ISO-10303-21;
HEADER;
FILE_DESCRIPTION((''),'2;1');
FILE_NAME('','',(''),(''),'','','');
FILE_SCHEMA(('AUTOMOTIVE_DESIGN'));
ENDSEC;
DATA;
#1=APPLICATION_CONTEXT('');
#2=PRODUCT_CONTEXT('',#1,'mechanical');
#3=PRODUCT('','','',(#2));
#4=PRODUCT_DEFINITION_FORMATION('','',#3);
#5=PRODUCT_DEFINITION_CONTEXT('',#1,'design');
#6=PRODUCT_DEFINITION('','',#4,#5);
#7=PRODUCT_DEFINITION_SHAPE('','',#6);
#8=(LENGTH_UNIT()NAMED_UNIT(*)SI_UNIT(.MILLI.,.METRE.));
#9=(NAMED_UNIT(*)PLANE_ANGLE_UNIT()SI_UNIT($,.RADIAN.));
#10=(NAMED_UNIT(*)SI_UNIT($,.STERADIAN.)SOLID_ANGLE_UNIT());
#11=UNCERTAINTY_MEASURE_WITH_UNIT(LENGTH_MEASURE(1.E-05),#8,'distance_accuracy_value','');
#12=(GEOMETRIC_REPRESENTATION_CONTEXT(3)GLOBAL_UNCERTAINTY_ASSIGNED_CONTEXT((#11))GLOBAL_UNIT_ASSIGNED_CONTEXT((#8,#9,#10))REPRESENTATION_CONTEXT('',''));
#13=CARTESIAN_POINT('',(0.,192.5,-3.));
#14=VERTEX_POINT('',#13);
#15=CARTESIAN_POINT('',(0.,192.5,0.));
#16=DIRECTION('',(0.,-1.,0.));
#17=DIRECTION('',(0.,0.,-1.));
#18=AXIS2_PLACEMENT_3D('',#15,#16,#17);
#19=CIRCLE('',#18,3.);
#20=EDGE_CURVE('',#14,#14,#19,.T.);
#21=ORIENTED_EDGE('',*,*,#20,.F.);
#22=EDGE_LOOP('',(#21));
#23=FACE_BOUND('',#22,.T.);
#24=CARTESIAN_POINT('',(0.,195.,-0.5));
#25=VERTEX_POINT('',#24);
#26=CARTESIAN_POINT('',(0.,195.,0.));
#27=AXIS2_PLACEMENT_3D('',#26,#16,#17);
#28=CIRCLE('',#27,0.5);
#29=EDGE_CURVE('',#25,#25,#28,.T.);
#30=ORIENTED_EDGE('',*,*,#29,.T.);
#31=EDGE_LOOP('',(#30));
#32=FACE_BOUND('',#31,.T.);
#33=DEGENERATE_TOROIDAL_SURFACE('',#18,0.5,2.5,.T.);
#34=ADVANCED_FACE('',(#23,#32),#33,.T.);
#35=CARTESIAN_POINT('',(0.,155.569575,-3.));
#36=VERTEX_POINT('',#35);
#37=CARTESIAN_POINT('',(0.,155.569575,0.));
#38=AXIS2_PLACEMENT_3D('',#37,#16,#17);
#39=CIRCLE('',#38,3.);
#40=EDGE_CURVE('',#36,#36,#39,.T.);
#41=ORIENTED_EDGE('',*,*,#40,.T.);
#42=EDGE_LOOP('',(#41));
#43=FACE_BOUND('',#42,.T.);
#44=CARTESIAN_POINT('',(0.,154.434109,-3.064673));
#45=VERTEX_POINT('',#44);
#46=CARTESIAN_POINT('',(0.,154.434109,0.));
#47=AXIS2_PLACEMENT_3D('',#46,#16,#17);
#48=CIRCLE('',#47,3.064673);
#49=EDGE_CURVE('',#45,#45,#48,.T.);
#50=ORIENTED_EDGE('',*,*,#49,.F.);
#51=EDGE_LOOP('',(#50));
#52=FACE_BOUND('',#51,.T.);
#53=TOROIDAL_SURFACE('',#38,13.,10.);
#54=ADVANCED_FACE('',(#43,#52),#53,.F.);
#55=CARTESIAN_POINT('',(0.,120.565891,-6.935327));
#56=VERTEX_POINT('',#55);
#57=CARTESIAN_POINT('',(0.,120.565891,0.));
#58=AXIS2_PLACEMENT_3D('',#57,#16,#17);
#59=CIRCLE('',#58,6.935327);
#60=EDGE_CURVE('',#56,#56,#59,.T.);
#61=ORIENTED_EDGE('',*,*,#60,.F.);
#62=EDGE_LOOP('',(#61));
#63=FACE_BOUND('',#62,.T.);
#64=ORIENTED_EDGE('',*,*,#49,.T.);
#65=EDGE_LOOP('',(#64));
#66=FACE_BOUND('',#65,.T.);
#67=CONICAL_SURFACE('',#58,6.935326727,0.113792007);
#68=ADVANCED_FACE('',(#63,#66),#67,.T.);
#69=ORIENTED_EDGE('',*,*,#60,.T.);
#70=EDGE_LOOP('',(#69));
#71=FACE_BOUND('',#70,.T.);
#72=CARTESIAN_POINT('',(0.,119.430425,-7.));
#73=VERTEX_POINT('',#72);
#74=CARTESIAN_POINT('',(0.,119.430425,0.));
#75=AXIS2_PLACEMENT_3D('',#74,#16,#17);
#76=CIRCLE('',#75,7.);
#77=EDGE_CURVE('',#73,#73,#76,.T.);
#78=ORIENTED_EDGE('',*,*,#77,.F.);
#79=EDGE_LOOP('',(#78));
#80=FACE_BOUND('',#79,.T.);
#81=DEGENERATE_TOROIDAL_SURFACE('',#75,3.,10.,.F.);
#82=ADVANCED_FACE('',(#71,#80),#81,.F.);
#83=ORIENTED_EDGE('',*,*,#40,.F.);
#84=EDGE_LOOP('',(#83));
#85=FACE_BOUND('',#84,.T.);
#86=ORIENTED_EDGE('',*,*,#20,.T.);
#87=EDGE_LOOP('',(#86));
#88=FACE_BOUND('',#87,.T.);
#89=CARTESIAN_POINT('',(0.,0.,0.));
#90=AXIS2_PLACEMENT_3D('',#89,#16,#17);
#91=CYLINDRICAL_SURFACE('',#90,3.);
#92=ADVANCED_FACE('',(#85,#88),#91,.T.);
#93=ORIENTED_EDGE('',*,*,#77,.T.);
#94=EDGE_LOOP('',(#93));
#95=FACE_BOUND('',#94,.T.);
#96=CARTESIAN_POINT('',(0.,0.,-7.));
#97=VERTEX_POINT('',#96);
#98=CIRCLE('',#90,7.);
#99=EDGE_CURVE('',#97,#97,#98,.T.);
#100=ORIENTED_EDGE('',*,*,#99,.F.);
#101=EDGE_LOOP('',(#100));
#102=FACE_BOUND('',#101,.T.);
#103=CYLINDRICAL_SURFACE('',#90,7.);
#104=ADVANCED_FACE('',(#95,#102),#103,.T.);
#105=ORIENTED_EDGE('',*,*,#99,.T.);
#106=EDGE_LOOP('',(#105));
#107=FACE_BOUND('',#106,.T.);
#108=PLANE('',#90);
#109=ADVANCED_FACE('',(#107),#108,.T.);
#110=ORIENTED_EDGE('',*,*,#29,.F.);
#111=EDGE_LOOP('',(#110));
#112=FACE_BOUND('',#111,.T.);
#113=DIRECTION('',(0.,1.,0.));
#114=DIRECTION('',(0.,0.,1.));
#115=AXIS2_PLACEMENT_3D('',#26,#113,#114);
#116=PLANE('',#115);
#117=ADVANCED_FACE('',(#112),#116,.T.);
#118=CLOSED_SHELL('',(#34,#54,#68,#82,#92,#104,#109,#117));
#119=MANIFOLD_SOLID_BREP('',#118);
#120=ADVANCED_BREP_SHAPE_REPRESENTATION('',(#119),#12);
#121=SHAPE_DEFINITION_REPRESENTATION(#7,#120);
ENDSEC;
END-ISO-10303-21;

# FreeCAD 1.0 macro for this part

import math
import FreeCAD as App
import Part
import Sketcher

V = App.Vector
Q = App.Units.Quantity

doc = App.newDocument("Part")
body = doc.addObject("PartDesign::Body", "Body")

# Sketch on XY plane
sketch1 = body.newObject("Sketcher::SketchObject", "Sketch")
sketch1.AttachmentSupport = (doc.getObject("XY_Plane"), [""])
sketch1.MapMode = "FlatFace"
sketch1.addGeometry([
    Part.LineSegment(V(3, 155.569575, 0), V(3, 192.5, 0)),  # 0
    Part.ArcOfCircle(Part.Circle(V(0.5, 192.5, 0), V(0, 0, 1), 2.5), math.radians(0), math.radians(90)),  # 1
    Part.LineSegment(V(0.5, 195, 0), V(0, 195, 0)),  # 2
    Part.LineSegment(V(0, 195, 0), V(0, 0, 0)),  # 3
    Part.LineSegment(V(0, 0, 0), V(7, 0, 0)),  # 4
    Part.LineSegment(V(7, 0, 0), V(7, 119.430425, 0)),  # 5
    Part.ArcOfCircle(Part.Circle(V(-3, 119.430425, 0), V(0, 0, 1), 10), math.radians(0), math.radians(6.519802)),  # 6
    Part.LineSegment(V(6.935327, 120.565891, 0), V(3.064673, 154.434109, 0)),  # 7
    Part.ArcOfCircle(Part.Circle(V(13, 155.569575, 0), V(0, 0, 1), 10), math.radians(180), math.radians(186.519802)),  # 8
], False)
sketch1.addConstraint([
    Sketcher.Constraint("Tangent", 0, 2, 1, 1),
    Sketcher.Constraint("Tangent", 1, 2, 2, 1),
    Sketcher.Constraint("Coincident", 2, 2, 3, 1),
    Sketcher.Constraint("Coincident", 3, 2, 4, 1),
    Sketcher.Constraint("Coincident", 4, 2, 5, 1),
    Sketcher.Constraint("Tangent", 5, 2, 6, 1),
    Sketcher.Constraint("Tangent", 6, 2, 7, 1),
    Sketcher.Constraint("Tangent", 7, 2, 8, 2),
    Sketcher.Constraint("Tangent", 8, 1, 0, 1),
    Sketcher.Constraint("Vertical", 0),
    Sketcher.Constraint("Horizontal", 2),
    Sketcher.Constraint("Vertical", 3),
    Sketcher.Constraint("Horizontal", 4),
    Sketcher.Constraint("Vertical", 5),
    Sketcher.Constraint("Coincident", 3, 2, -1, 1),
    Sketcher.Constraint("Equal", 6, 8),
    Sketcher.Constraint("Radius", 6, Q("10 mm")),
    Sketcher.Constraint("Radius", 1, Q("2.5 mm")),
    Sketcher.Constraint("DistanceX", 4, 1, 4, 2, Q("7 mm")),
    Sketcher.Constraint("DistanceY", 3, 2, 3, 1, Q("195 mm")),
    Sketcher.Constraint("DistanceX", 2, 2, 2, 1, Q("0.5 mm")),
    Sketcher.Constraint("Distance", 7, Q("34.08868 mm")),
    Sketcher.Constraint("DistanceY", 0, 1, 0, 2, Q("36.930425 mm")),
])
revolution = body.newObject("PartDesign::Revolution", "Revolution")
revolution.Profile = sketch1
revolution.ReferenceAxis = (sketch1, ["V_Axis"])
revolution.Angle = 360

doc.recompute()
